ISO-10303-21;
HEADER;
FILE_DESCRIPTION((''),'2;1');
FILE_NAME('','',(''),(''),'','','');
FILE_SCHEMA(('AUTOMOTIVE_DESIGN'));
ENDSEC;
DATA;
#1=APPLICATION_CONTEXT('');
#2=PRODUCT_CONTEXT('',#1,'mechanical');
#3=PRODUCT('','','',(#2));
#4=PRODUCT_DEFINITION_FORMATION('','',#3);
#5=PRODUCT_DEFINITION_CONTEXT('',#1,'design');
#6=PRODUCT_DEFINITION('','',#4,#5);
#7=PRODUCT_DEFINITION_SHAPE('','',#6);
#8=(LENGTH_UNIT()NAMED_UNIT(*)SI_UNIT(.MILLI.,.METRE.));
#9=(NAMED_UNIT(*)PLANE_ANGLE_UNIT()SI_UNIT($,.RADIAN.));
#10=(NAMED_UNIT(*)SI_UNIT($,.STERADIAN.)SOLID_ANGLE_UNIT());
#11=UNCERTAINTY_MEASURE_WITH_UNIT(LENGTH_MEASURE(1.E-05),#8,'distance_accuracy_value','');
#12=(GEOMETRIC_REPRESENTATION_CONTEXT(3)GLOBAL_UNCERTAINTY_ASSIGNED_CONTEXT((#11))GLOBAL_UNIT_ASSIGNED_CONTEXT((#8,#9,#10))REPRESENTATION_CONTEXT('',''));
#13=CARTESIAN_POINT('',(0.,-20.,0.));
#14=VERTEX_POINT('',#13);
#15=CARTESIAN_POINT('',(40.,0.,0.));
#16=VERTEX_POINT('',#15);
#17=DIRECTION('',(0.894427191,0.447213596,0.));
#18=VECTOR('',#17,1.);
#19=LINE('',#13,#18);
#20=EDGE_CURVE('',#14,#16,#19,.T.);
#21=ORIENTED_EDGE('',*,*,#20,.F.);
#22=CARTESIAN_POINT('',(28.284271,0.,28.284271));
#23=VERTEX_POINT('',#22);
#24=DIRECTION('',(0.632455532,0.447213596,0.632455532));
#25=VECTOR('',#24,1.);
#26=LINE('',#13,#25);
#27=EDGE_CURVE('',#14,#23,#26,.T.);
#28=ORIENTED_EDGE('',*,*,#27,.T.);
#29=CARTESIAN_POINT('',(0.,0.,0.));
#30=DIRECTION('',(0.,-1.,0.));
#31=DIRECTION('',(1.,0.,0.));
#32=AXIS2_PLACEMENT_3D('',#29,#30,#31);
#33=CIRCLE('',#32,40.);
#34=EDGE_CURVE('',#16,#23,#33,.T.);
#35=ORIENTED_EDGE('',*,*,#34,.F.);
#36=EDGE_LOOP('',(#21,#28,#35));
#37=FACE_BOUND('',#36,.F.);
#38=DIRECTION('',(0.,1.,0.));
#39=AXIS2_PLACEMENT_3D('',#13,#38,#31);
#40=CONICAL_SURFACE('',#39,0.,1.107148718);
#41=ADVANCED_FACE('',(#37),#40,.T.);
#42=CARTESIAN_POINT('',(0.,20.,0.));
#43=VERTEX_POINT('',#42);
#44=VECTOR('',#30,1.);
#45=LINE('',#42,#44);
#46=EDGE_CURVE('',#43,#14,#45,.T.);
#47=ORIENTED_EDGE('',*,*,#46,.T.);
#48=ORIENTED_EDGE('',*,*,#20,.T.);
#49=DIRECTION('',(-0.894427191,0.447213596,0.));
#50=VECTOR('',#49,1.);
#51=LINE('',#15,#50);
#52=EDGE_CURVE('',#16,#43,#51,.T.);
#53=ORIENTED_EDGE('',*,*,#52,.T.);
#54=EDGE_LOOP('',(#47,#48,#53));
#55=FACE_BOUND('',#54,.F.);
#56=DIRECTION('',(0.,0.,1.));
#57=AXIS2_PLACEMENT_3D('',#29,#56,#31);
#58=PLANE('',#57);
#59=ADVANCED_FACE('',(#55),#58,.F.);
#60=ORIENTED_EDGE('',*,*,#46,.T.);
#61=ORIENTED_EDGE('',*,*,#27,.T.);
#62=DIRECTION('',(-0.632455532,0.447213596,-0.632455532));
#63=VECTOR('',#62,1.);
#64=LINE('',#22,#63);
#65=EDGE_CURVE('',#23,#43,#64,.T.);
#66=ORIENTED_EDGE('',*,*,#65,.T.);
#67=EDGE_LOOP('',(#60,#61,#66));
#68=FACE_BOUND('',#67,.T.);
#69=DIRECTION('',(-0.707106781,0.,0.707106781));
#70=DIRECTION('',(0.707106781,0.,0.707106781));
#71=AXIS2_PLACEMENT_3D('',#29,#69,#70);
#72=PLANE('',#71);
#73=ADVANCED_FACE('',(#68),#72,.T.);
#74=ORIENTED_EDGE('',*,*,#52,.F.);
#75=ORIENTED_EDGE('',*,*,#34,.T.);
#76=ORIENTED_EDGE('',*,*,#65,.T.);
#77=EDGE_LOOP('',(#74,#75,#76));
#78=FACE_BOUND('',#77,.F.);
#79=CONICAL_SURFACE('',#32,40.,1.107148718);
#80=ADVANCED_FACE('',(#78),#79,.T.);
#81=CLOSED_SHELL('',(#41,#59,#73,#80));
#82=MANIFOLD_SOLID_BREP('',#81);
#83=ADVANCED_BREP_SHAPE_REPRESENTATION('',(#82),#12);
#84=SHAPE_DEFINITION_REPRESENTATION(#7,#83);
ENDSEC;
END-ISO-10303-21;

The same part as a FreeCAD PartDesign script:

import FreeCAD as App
import Part
import Sketcher
from FreeCAD import Vector

doc = App.newDocument("Part")
params = doc.addObject("Spreadsheet::Sheet", "Params")
for row, (alias, value) in enumerate([
    ("sketch1_height", "40 mm"),
    ("revolution_angle", "45 deg"),
], start=1):
    params.set(f"A{row}", alias)
    params.set(f"B{row}", "=" + value)
    params.setAlias(f"B{row}", alias)

body = doc.addObject("PartDesign::Body", "Body")

# Sketch on XY plane
sketch1 = body.newObject("Sketcher::SketchObject", "Sketch")
sketch1.AttachmentSupport = (doc.getObject("XY_Plane"), [""])
sketch1.MapMode = "FlatFace"
sketch1.addGeometry([
    Part.LineSegment(Vector(40, 0, 0), Vector(0, 20, 0)),
    Part.LineSegment(Vector(0, 20, 0), Vector(0, -20, 0)),
    Part.LineSegment(Vector(0, -20, 0), Vector(40, 0, 0)),
], False)
sketch1.addConstraint([
    Sketcher.Constraint("Coincident", 0, 2, 1, 1),
    Sketcher.Constraint("Coincident", 1, 2, 2, 1),
    Sketcher.Constraint("Coincident", 2, 2, 0, 1),
    Sketcher.Constraint("Vertical", 1),
    Sketcher.Constraint("Symmetric", 0, 2, 1, 2, -1, 1),
    Sketcher.Constraint("PointOnObject", 2, 2, -1),
    Sketcher.Constraint("DistanceY", 1, 2, 1, 1, 40.0),
    Sketcher.Constraint("DistanceX", -1, 1, 2, 2, 40.0),
])
sketch1.setExpression("Constraints[6]", "Params.sketch1_height")
revolution = body.newObject("PartDesign::Revolution", "Revolution")
revolution.Profile = sketch1
revolution.ReferenceAxis = (sketch1, ["V_Axis"])
revolution.setExpression("Angle", "Params.revolution_angle")
revolution.Reversed = True

doc.recompute()
